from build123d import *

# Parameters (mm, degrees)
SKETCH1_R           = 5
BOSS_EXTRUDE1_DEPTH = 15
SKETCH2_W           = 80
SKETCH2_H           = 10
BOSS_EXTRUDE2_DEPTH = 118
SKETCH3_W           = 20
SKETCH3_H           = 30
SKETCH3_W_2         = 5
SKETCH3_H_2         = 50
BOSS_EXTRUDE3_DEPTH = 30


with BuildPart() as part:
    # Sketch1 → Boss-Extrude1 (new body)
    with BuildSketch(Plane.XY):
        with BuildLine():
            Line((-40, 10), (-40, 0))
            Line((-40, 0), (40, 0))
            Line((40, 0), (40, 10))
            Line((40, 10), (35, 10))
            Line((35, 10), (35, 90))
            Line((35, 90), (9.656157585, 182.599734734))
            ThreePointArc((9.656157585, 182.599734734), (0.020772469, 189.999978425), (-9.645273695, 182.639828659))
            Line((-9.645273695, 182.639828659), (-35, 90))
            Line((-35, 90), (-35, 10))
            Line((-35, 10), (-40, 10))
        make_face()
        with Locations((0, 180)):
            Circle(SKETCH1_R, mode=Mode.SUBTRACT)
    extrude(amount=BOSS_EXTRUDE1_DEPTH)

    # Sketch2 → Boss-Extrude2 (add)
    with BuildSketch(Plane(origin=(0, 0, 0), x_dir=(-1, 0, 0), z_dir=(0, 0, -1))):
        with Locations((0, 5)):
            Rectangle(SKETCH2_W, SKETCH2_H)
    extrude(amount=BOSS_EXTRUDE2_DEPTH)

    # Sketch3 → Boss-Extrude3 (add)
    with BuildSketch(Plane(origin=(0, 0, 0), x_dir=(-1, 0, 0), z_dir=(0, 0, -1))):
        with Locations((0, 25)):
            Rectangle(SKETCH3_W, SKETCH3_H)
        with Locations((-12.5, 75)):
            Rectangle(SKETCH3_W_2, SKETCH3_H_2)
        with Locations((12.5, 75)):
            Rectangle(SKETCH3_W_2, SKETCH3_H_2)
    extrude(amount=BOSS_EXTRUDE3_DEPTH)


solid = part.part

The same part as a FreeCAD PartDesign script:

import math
import FreeCAD as App
import Part
import Sketcher

V = App.Vector


def add_polygon(sketch, points):
    """Adds a closed chain of lines whose ends are joined by coincident constraints."""
    first, n = sketch.GeometryCount, len(points)
    for a, b in zip(points, points[1:] + points[:1]):
        sketch.addGeometry(Part.LineSegment(App.Vector(*a, 0), App.Vector(*b, 0)), False)
    for i in range(n):
        sketch.addConstraint(Sketcher.Constraint("Coincident", first + i, 2, first + (i + 1) % n, 1))

doc = App.newDocument("Part")
body = doc.addObject("PartDesign::Body", "Body")

# Sketch on XY plane
sketch1 = body.newObject("Sketcher::SketchObject", "Sketch")
sketch1.AttachmentSupport = (doc.getObject("XY_Plane"), [""])
sketch1.MapMode = "FlatFace"
sketch1.addGeometry(Part.LineSegment(V(-40, 10, 0), V(-40, 0, 0)), False)
sketch1.addGeometry(Part.LineSegment(V(-40, 0, 0), V(40, 0, 0)), False)
sketch1.addGeometry(Part.LineSegment(V(40, 0, 0), V(40, 10, 0)), False)
sketch1.addGeometry(Part.LineSegment(V(40, 10, 0), V(35, 10, 0)), False)
sketch1.addGeometry(Part.LineSegment(V(35, 10, 0), V(35, 90, 0)), False)
sketch1.addGeometry(Part.LineSegment(V(35, 90, 0), V(10, 183, 0)), False)
sketch1.addGeometry(Part.ArcOfCircle(Part.Circle(V(0, 180, 0), V(0, 0, 1), 10), math.radians(15), math.radians(165)), False)
sketch1.addGeometry(Part.LineSegment(V(-10, 183, 0), V(-35, 90, 0)), False)
sketch1.addGeometry(Part.LineSegment(V(-35, 90, 0), V(-35, 10, 0)), False)
sketch1.addGeometry(Part.LineSegment(V(-35, 10, 0), V(-40, 10, 0)), False)
sketch1.addGeometry(Part.Circle(V(0, 180, 0), V(0, 0, 1), 5), False)
sketch1.addConstraint(Sketcher.Constraint("Coincident", 0, 2, 1, 1))
sketch1.addConstraint(Sketcher.Constraint("Coincident", 1, 2, 2, 1))
sketch1.addConstraint(Sketcher.Constraint("Coincident", 2, 2, 3, 1))
sketch1.addConstraint(Sketcher.Constraint("Coincident", 3, 2, 4, 1))
sketch1.addConstraint(Sketcher.Constraint("Coincident", 4, 2, 5, 1))
sketch1.addConstraint(Sketcher.Constraint("Coincident", 5, 2, 6, 1))
sketch1.addConstraint(Sketcher.Constraint("Tangent", 6, 2, 7, 1))
sketch1.addConstraint(Sketcher.Constraint("Coincident", 7, 2, 8, 1))
sketch1.addConstraint(Sketcher.Constraint("Coincident", 8, 2, 9, 1))
sketch1.addConstraint(Sketcher.Constraint("Coincident", 9, 2, 0, 1))
sketch1.addConstraint(Sketcher.Constraint("Vertical", 0))
sketch1.addConstraint(Sketcher.Constraint("Horizontal", 1))
sketch1.addConstraint(Sketcher.Constraint("Vertical", 2))
sketch1.addConstraint(Sketcher.Constraint("Horizontal", 3))
sketch1.addConstraint(Sketcher.Constraint("Vertical", 4))
sketch1.addConstraint(Sketcher.Constraint("Vertical", 8))
sketch1.addConstraint(Sketcher.Constraint("Horizontal", 9))
sketch1.addConstraint(Sketcher.Constraint("Coincident", 10, 3, 6, 3))
sketch1.addConstraint(Sketcher.Constraint("Symmetric", 0, 2, 1, 2, -1, 1))
sketch1.addConstraint(Sketcher.Constraint("Symmetric", 4, 2, 7, 2, -2))
sketch1.addConstraint(Sketcher.Constraint("PointOnObject", 6, 3, -2))
sketch1.addConstraint(Sketcher.Constraint("Horizontal", 3, 2, 8, 2))
sketch1.addConstraint(Sketcher.Constraint("Equal", 1, 4))
sketch1.addConstraint(Sketcher.Constraint("Diameter", 10, 10.0))
sketch1.addConstraint(Sketcher.Constraint("Radius", 6, 10.0))
sketch1.addConstraint(Sketcher.Constraint("DistanceX", 1, 1, 1, 2, 80.0))
sketch1.addConstraint(Sketcher.Constraint("DistanceX", 3, 2, 3, 1, 5.0))
sketch1.addConstraint(Sketcher.Constraint("DistanceY", 0, 2, 0, 1, 10.0))
sketch1.addConstraint(Sketcher.Constraint("DistanceY", -1, 1, 6, 3, 180.0))
sketch1.addConstraint(Sketcher.Constraint("Distance", 5, 96.005319))
pad1 = body.newObject("PartDesign::Pad", "Pad")
pad1.Profile = sketch1
pad1.Length = 15

# Sketch on XY plane
sketch2 = body.newObject("Sketcher::SketchObject", "Sketch001")
sketch2.AttachmentSupport = (doc.getObject("XY_Plane"), [""])
sketch2.MapMode = "FlatFace"
add_polygon(sketch2, [(40, 10), (40, 0), (-40, 0), (-40, 10)])  # lines 0-3
sketch2.addConstraint(Sketcher.Constraint("Vertical", 0))
sketch2.addConstraint(Sketcher.Constraint("Horizontal", 1))
sketch2.addConstraint(Sketcher.Constraint("Vertical", 2))
sketch2.addConstraint(Sketcher.Constraint("Horizontal", 3))
sketch2.addConstraint(Sketcher.Constraint("Symmetric", 0, 2, 1, 2, -1, 1))
sketch2.addConstraint(Sketcher.Constraint("DistanceX", 1, 2, 1, 1, 80.0))
sketch2.addConstraint(Sketcher.Constraint("DistanceY", 0, 2, 0, 1, 10.0))
pad2 = body.newObject("PartDesign::Pad", "Pad001")
pad2.Profile = sketch2
pad2.Length = 118
pad2.Reversed = True

# Sketch on XY plane
sketch3 = body.newObject("Sketcher::SketchObject", "Sketch002")
sketch3.AttachmentSupport = (doc.getObject("XY_Plane"), [""])
sketch3.MapMode = "FlatFace"
add_polygon(sketch3, [(10, 40), (10, 10), (-10, 10), (-10, 40)])  # lines 0-3
add_polygon(sketch3, [(15, 100), (15, 50), (10, 50), (10, 100)])  # lines 4-7
add_polygon(sketch3, [(-10, 100), (-10, 50), (-15, 50), (-15, 100)])  # lines 8-11
sketch3.addConstraint(Sketcher.Constraint("Vertical", 0))
sketch3.addConstraint(Sketcher.Constraint("Horizontal", 1))
sketch3.addConstraint(Sketcher.Constraint("Vertical", 2))
sketch3.addConstraint(Sketcher.Constraint("Horizontal", 3))
sketch3.addConstraint(Sketcher.Constraint("Vertical", 4))
sketch3.addConstraint(Sketcher.Constraint("Horizontal", 5))
sketch3.addConstraint(Sketcher.Constraint("Vertical", 6))
sketch3.addConstraint(Sketcher.Constraint("Horizontal", 7))
sketch3.addConstraint(Sketcher.Constraint("Vertical", 8))
sketch3.addConstraint(Sketcher.Constraint("Horizontal", 9))
sketch3.addConstraint(Sketcher.Constraint("Vertical", 10))
sketch3.addConstraint(Sketcher.Constraint("Horizontal", 11))
sketch3.addConstraint(Sketcher.Constraint("Symmetric", 5, 2, 8, 2, -2))
sketch3.addConstraint(Sketcher.Constraint("Symmetric", 7, 2, 10, 2, -2))
sketch3.addConstraint(Sketcher.Constraint("Vertical", 3, 2, 5, 2))
sketch3.addConstraint(Sketcher.Constraint("Vertical", 2, 2, 8, 2))
sketch3.addConstraint(Sketcher.Constraint("DistanceX", 1, 2, 1, 1, 20.0))
sketch3.addConstraint(Sketcher.Constraint("DistanceX", 5, 2, 5, 1, 5.0))
sketch3.addConstraint(Sketcher.Constraint("DistanceY", 0, 2, 0, 1, 30.0))
sketch3.addConstraint(Sketcher.Constraint("DistanceY", 4, 2, 4, 1, 50.0))
sketch3.addConstraint(Sketcher.Constraint("DistanceY", -1, 1, 0, 2, 10.0))
sketch3.addConstraint(Sketcher.Constraint("DistanceY", -1, 1, 4, 2, 50.0))
pad3 = body.newObject("PartDesign::Pad", "Pad002")
pad3.Profile = sketch3
pad3.Length = 30
pad3.Reversed = True

doc.recompute()
